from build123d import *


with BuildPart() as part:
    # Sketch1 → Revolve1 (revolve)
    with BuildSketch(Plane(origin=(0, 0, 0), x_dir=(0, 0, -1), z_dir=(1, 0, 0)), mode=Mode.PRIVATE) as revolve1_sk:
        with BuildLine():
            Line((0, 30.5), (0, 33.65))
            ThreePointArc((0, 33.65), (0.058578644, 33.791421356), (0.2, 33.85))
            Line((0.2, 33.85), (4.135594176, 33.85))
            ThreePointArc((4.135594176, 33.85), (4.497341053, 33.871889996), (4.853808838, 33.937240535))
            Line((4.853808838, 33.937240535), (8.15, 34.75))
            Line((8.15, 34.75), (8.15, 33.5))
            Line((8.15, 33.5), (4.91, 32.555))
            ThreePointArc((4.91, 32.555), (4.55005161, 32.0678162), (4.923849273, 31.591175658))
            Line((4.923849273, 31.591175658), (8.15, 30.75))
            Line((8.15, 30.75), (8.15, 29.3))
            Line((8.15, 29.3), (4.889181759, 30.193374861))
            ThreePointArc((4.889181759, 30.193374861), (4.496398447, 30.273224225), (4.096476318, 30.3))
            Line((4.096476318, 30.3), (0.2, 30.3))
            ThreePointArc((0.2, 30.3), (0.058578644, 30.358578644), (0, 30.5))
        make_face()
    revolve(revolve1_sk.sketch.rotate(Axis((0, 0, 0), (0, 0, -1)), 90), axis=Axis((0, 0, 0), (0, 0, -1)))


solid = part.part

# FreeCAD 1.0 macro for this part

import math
import FreeCAD as App
import Part
import Sketcher

doc = App.newDocument("Part")
body = doc.addObject("PartDesign::Body", "Body")

# Sketch on YZ plane
sketch1 = body.newObject("Sketcher::SketchObject", "Sketch")
sketch1.AttachmentSupport = (doc.getObject("YZ_Plane"), [""])
sketch1.MapMode = "FlatFace"
sketch1.addGeometry([
    Part.LineSegment(App.Vector(33.65, 0, 0), App.Vector(30.5, 0, 0)),  # 0
    Part.ArcOfCircle(Part.Circle(App.Vector(30.5, -0.2, 0), App.Vector(0, 0, 1), 0.2), math.radians(90), math.radians(180)),  # 1
    Part.LineSegment(App.Vector(30.3, -0.2, 0), App.Vector(30.3, -4.096476, 0)),  # 2
    Part.ArcOfCircle(Part.Circle(App.Vector(27.3, -4.096476, 0), App.Vector(0, 0, 1), 3), math.radians(-15.32151), math.radians(0)),  # 3
    Part.LineSegment(App.Vector(30.193375, -4.889182, 0), App.Vector(29.3, -8.15, 0)),  # 4
    Part.LineSegment(App.Vector(29.3, -8.15, 0), App.Vector(30.75, -8.15, 0)),  # 5
    Part.LineSegment(App.Vector(30.75, -8.15, 0), App.Vector(31.591176, -4.923849, 0)),  # 6
    Part.ArcOfCircle(Part.Circle(App.Vector(32.075, -5.05, 0), App.Vector(0, 0, 1), 0.5), math.radians(16.260205), math.radians(165.386258)),  # 7
    Part.LineSegment(App.Vector(32.555, -4.91, 0), App.Vector(33.5, -8.15, 0)),  # 8
    Part.LineSegment(App.Vector(33.5, -8.15, 0), App.Vector(34.75, -8.15, 0)),  # 9
    Part.LineSegment(App.Vector(34.75, -8.15, 0), App.Vector(33.937241, -4.853809, 0)),  # 10
    Part.ArcOfCircle(Part.Circle(App.Vector(36.85, -4.135594, 0), App.Vector(0, 0, 1), 3), math.radians(-180), math.radians(-166.148581)),  # 11
    Part.LineSegment(App.Vector(33.85, -4.135594, 0), App.Vector(33.85, -0.2, 0)),  # 12
    Part.ArcOfCircle(Part.Circle(App.Vector(33.65, -0.2, 0), App.Vector(0, 0, 1), 0.2), math.radians(0), math.radians(90)),  # 13
], False)
sketch1.addConstraint([
    Sketcher.Constraint("Tangent", 0, 2, 1, 1),
    Sketcher.Constraint("Tangent", 1, 2, 2, 1),
    Sketcher.Constraint("Tangent", 2, 2, 3, 2),
    Sketcher.Constraint("Tangent", 3, 1, 4, 1),
    Sketcher.Constraint("Coincident", 4, 2, 5, 1),
    Sketcher.Constraint("Coincident", 5, 2, 6, 1),
    Sketcher.Constraint("Tangent", 6, 2, 7, 2),
    Sketcher.Constraint("Tangent", 7, 1, 8, 1),
    Sketcher.Constraint("Coincident", 8, 2, 9, 1),
    Sketcher.Constraint("Coincident", 9, 2, 10, 1),
    Sketcher.Constraint("Tangent", 10, 2, 11, 2),
    Sketcher.Constraint("Tangent", 11, 1, 12, 1),
    Sketcher.Constraint("Tangent", 12, 2, 13, 1),
    Sketcher.Constraint("Tangent", 13, 2, 0, 1),
    Sketcher.Constraint("Horizontal", 0),
    Sketcher.Constraint("Vertical", 2),
    Sketcher.Constraint("Horizontal", 5),
    Sketcher.Constraint("Horizontal", 9),
    Sketcher.Constraint("Vertical", 12),
    Sketcher.Constraint("Equal", 3, 11),
    Sketcher.Constraint("Equal", 1, 13),
    Sketcher.Constraint("PointOnObject", 0, 2, -1),
    Sketcher.Constraint("Horizontal", 5, 2, 8, 2),
    Sketcher.Constraint("Radius", 3, 3.0),
    Sketcher.Constraint("Radius", 1, 0.2),
    Sketcher.Constraint("Radius", 7, 0.5),
    Sketcher.Constraint("DistanceX", 4, 2, 2, 2, 1.0),
    Sketcher.Constraint("DistanceX", 5, 2, 9, 2, 4.0),
    Sketcher.Constraint("DistanceX", 0, 2, 0, 1, 3.15),
    Sketcher.Constraint("DistanceX", 5, 1, 5, 2, 1.45),
    Sketcher.Constraint("DistanceX", 9, 1, 9, 2, 1.25),
    Sketcher.Constraint("DistanceX", -1, 1, 1, 3, 30.5),
    Sketcher.Constraint("DistanceY", 4, 2, 7, 3, 3.1),
    Sketcher.Constraint("DistanceY", 7, 3, -1, 1, 5.05),
    Sketcher.Constraint("DistanceY", 7, 1, -1, 1, 4.91),
    Sketcher.Constraint("DistanceX", 3, 1, 6, 2, 1.397801),
    Sketcher.Constraint("DistanceY", 12, 1, 12, 2, 3.935594),
])
revolution = body.newObject("PartDesign::Revolution", "Revolution")
revolution.Profile = sketch1
revolution.ReferenceAxis = (sketch1, ["V_Axis"])
revolution.Angle = 360

doc.recompute()
